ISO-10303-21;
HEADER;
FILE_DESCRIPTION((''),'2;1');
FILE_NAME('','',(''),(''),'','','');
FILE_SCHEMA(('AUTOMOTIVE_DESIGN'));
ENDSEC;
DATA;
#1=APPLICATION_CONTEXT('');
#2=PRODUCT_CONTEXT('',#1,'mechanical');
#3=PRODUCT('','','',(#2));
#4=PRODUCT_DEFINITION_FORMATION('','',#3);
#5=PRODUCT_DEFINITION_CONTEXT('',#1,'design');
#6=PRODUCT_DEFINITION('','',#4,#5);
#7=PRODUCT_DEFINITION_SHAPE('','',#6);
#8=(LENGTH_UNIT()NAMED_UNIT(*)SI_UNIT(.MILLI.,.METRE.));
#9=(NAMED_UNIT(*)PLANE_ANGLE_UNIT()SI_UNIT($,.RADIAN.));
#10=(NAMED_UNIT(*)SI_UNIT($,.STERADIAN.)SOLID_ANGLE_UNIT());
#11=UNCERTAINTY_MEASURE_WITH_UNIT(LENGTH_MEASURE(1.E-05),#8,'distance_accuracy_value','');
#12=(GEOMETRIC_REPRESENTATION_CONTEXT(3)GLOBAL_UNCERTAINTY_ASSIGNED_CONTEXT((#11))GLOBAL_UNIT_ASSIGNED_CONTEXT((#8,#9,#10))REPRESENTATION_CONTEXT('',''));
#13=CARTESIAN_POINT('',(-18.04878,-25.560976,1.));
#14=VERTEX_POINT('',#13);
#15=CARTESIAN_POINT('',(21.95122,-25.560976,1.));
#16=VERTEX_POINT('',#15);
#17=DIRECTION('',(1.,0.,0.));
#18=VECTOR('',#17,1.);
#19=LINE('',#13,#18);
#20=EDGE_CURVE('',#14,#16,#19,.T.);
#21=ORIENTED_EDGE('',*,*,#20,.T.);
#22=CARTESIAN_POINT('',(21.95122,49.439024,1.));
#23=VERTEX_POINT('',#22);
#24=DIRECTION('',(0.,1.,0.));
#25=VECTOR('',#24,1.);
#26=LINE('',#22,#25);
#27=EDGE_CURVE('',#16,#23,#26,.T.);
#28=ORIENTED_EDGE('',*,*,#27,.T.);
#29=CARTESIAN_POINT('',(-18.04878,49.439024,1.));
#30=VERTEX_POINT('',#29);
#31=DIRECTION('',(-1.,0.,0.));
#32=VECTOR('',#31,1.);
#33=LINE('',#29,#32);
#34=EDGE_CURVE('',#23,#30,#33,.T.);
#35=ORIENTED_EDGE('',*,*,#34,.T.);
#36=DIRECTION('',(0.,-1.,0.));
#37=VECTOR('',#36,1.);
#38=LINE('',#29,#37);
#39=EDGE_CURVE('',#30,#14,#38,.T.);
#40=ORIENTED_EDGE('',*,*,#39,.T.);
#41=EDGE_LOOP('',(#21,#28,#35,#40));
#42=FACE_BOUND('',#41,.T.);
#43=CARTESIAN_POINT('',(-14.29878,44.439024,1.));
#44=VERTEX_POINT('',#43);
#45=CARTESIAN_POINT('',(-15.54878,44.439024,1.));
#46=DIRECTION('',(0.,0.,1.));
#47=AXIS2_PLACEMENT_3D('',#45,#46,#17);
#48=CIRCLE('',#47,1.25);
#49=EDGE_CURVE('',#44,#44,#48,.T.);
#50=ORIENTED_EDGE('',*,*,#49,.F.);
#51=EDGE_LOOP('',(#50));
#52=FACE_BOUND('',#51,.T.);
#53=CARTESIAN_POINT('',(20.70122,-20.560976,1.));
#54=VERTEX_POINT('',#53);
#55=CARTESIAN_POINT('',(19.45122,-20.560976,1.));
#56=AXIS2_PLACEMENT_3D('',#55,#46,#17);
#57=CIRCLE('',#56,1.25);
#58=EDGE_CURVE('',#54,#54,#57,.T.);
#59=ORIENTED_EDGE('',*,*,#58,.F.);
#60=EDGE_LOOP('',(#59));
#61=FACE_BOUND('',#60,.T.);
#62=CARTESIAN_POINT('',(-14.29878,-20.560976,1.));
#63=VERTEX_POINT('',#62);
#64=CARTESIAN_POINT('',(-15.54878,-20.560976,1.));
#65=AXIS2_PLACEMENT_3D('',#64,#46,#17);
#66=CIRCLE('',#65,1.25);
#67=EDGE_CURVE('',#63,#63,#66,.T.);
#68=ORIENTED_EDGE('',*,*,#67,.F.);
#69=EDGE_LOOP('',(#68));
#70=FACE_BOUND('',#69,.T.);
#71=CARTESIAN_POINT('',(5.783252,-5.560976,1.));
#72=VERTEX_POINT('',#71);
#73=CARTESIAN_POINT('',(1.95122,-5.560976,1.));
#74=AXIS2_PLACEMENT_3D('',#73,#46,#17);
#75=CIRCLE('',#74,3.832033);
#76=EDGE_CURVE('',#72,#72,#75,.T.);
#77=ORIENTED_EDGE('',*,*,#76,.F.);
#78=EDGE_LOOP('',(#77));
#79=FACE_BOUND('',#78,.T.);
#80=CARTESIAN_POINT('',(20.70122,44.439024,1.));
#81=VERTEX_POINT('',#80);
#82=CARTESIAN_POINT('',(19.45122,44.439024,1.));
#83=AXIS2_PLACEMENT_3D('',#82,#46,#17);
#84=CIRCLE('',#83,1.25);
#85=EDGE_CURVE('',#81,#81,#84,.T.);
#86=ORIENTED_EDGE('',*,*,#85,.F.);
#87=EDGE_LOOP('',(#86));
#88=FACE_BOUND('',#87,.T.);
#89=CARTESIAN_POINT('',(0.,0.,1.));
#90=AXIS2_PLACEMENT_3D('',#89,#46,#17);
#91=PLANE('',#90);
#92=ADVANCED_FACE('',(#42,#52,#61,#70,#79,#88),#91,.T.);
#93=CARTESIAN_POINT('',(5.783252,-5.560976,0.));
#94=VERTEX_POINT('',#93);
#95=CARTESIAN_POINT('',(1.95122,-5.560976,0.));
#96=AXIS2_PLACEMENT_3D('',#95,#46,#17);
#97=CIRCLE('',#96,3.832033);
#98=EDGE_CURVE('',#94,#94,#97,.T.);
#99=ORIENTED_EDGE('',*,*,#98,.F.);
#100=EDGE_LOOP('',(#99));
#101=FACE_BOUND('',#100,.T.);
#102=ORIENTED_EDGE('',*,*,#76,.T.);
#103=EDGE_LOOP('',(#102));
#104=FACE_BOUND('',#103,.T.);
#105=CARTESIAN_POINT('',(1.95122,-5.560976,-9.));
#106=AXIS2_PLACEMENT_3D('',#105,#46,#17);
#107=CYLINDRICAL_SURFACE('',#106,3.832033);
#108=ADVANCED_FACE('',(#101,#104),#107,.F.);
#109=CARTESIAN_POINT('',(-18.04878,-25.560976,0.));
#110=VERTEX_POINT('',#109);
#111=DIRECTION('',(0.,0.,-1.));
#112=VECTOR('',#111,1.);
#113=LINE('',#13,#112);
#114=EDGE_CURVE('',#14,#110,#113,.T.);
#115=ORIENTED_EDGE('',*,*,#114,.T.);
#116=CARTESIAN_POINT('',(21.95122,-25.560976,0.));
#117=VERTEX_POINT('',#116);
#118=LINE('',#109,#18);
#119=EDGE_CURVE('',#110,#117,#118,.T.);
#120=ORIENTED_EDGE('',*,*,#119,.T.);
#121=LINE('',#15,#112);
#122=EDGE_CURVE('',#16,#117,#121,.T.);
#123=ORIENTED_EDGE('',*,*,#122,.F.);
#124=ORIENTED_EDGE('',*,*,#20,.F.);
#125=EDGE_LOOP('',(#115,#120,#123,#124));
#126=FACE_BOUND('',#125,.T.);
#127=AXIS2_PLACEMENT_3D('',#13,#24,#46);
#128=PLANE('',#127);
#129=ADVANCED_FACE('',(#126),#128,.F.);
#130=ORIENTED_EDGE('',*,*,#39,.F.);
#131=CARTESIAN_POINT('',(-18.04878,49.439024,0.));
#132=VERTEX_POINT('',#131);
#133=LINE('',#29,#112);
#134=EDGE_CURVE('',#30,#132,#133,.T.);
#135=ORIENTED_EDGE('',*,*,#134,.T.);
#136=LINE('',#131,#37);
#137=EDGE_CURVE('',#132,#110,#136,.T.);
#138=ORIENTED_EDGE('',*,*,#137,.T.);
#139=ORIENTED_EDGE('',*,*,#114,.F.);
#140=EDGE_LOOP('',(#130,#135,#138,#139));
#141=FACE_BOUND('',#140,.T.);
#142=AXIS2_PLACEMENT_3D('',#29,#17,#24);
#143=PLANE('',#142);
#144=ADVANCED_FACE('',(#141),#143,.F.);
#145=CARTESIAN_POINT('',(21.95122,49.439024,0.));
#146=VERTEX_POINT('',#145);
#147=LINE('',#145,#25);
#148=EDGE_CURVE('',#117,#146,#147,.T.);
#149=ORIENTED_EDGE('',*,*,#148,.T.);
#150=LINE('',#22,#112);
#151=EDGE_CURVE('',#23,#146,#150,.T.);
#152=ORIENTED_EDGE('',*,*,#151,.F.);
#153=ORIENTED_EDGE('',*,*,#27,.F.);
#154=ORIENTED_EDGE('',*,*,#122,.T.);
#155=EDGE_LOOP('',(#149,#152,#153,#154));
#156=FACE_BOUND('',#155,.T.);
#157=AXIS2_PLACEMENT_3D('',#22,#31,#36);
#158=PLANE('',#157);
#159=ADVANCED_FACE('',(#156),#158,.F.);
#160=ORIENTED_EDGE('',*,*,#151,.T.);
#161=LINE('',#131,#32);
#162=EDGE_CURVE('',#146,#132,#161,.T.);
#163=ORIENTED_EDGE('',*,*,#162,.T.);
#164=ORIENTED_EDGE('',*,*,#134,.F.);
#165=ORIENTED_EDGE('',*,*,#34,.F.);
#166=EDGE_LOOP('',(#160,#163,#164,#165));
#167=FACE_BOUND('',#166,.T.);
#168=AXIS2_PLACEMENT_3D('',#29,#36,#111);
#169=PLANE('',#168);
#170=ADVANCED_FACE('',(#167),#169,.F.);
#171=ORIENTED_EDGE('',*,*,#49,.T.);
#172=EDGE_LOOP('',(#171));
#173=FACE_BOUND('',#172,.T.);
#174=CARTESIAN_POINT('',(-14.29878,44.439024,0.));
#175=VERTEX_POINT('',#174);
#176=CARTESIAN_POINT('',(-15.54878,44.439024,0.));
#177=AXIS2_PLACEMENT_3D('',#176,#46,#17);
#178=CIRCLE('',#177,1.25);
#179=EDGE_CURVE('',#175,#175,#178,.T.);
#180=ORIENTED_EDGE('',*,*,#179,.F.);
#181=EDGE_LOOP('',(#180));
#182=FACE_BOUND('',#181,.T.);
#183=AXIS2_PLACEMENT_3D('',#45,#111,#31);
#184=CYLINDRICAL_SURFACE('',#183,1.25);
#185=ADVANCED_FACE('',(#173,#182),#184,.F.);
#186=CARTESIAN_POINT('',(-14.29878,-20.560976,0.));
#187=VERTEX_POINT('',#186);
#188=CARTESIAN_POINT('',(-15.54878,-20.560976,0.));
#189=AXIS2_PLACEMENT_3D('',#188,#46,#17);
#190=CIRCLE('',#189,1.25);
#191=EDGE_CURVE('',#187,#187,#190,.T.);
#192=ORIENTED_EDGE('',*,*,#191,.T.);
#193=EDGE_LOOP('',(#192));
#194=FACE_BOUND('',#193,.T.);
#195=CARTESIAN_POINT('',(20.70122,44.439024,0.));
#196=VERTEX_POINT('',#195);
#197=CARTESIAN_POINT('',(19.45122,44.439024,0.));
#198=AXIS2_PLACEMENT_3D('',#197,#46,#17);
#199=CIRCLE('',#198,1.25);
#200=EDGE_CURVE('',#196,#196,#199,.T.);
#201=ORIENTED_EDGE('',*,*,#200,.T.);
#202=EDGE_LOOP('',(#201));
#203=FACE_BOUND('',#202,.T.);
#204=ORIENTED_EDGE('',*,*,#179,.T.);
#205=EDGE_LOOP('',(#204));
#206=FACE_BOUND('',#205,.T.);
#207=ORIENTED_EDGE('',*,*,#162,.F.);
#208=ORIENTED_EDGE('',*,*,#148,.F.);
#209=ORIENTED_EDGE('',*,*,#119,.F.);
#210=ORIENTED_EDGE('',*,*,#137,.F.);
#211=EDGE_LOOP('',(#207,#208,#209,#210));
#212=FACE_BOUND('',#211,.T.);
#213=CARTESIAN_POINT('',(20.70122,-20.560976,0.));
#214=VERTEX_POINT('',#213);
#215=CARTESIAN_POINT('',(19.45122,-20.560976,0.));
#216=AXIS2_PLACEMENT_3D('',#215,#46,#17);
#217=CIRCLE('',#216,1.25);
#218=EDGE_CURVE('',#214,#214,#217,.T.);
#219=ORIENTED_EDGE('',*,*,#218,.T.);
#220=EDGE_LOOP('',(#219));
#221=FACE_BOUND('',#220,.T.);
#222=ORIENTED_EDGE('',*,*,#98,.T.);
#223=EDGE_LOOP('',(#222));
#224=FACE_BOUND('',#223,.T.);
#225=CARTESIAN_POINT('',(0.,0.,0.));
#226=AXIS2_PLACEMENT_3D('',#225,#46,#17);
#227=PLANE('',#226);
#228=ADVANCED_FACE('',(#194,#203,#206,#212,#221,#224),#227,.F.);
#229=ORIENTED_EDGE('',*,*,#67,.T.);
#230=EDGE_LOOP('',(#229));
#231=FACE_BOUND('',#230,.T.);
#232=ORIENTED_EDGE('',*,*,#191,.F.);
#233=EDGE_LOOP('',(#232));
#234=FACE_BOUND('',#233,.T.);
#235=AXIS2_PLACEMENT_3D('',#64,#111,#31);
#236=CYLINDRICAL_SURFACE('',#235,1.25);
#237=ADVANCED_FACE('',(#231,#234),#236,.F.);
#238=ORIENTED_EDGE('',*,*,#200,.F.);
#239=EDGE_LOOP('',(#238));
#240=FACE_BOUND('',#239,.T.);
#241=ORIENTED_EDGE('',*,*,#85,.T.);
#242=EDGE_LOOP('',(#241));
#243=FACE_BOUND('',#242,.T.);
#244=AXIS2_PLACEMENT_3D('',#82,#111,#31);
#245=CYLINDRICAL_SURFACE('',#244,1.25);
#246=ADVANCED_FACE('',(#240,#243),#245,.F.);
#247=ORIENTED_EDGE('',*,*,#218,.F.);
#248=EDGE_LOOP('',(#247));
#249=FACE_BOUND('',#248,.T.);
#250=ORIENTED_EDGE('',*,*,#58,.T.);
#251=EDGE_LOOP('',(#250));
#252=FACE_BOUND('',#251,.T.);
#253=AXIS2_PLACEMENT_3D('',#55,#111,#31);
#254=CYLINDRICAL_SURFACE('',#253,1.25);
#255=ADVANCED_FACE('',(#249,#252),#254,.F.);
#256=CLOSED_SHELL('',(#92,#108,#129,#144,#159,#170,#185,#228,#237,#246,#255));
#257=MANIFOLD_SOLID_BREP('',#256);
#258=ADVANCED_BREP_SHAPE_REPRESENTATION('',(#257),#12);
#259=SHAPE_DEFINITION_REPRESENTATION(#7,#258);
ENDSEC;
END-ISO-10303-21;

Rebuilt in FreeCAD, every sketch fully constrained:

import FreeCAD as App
import Part
import Sketcher

doc = App.newDocument("Part")
body = doc.addObject("PartDesign::Body", "Body")

sketch1 = doc.addObject("Sketcher::SketchObject", "Sketch")
body.addObject(sketch1)
sketch1.AttachmentSupport = (doc.XY_Plane, [""])
sketch1.MapMode = "FlatFace"
sketch1.addGeometry(Part.LineSegment(App.Vector(-18, 49.4, 0), App.Vector(-18, -25.6, 0)), False)
sketch1.addGeometry(Part.LineSegment(App.Vector(-18, -25.6, 0), App.Vector(22, -25.6, 0)), False)
sketch1.addGeometry(Part.LineSegment(App.Vector(22, -25.6, 0), App.Vector(22, 49.4, 0)), False)
sketch1.addGeometry(Part.LineSegment(App.Vector(22, 49.4, 0), App.Vector(-18, 49.4, 0)), False)
sketch1.addGeometry(Part.Circle(App.Vector(-15.5, -20.6, 0), App.Vector(0, 0, 1), 1.2), False)
sketch1.addGeometry(Part.Circle(App.Vector(19.5, -20.6, 0), App.Vector(0, 0, 1), 1.2), False)
sketch1.addGeometry(Part.Circle(App.Vector(-15.5, 44.4, 0), App.Vector(0, 0, 1), 1.2), False)
sketch1.addGeometry(Part.Circle(App.Vector(19.5, 44.4, 0), App.Vector(0, 0, 1), 1.2), False)
sketch1.addConstraint(Sketcher.Constraint("Coincident", 0, 2, 1, 1))
sketch1.addConstraint(Sketcher.Constraint("Coincident", 1, 2, 2, 1))
sketch1.addConstraint(Sketcher.Constraint("Coincident", 2, 2, 3, 1))
sketch1.addConstraint(Sketcher.Constraint("Coincident", 3, 2, 0, 1))
sketch1.addConstraint(Sketcher.Constraint("Vertical", 0))
sketch1.addConstraint(Sketcher.Constraint("Horizontal", 1))
sketch1.addConstraint(Sketcher.Constraint("Vertical", 2))
sketch1.addConstraint(Sketcher.Constraint("Horizontal", 3))
sketch1.addConstraint(Sketcher.Constraint("Equal", 4, 5))
sketch1.addConstraint(Sketcher.Constraint("Equal", 5, 6))
sketch1.addConstraint(Sketcher.Constraint("Equal", 6, 7))
sketch1.addConstraint(Sketcher.Constraint("Horizontal", 4, 3, 5, 3))
sketch1.addConstraint(Sketcher.Constraint("Horizontal", 6, 3, 7, 3))
sketch1.addConstraint(Sketcher.Constraint("Vertical", 4, 3, 6, 3))
sketch1.addConstraint(Sketcher.Constraint("Vertical", 5, 3, 7, 3))
sketch1.addConstraint(Sketcher.Constraint("Diameter", 4, 2.5))
sketch1.addConstraint(Sketcher.Constraint("DistanceX", 1, 1, 1, 2, 40.0))
sketch1.addConstraint(Sketcher.Constraint("DistanceY", 0, 2, 0, 1, 75.0))
sketch1.addConstraint(Sketcher.Constraint("DistanceX", 4, 3, 5, 3, 35.0))
sketch1.addConstraint(Sketcher.Constraint("DistanceY", 4, 3, 6, 3, 65.0))
sketch1.addConstraint(Sketcher.Constraint("DistanceY", 0, 2, 4, 3, 5.0))
sketch1.addConstraint(Sketcher.Constraint("DistanceX", 0, 2, 4, 3, 2.5))
sketch1.addConstraint(Sketcher.Constraint("DistanceX", 4, 3, -1, 1, 15.54878))
sketch1.addConstraint(Sketcher.Constraint("DistanceY", 4, 3, -1, 1, 20.560976))
pad1 = doc.addObject("PartDesign::Pad", "Pad")
body.addObject(pad1)
pad1.Profile = sketch1
pad1.Length = 1

sketch2 = doc.addObject("Sketcher::SketchObject", "Sketch001")
body.addObject(sketch2)
sketch2.AttachmentSupport = (doc.XY_Plane, [""])
sketch2.MapMode = "FlatFace"
sketch2.AttachmentOffset = App.Placement(App.Vector(0, 0, 1), App.Rotation())
sketch2.addGeometry(Part.Circle(App.Vector(2, -5.6, 0), App.Vector(0, 0, 1), 3.8), False)
sketch2.addConstraint(Sketcher.Constraint("Diameter", 0, 7.664065))
sketch2.addConstraint(Sketcher.Constraint("DistanceX", -1, 1, 0, 3, 1.95122))
sketch2.addConstraint(Sketcher.Constraint("DistanceY", 0, 3, -1, 1, 5.560976))
pocket1 = doc.addObject("PartDesign::Pocket", "Pocket")
body.addObject(pocket1)
pocket1.Profile = sketch2
pocket1.Length = 10

doc.recompute()
